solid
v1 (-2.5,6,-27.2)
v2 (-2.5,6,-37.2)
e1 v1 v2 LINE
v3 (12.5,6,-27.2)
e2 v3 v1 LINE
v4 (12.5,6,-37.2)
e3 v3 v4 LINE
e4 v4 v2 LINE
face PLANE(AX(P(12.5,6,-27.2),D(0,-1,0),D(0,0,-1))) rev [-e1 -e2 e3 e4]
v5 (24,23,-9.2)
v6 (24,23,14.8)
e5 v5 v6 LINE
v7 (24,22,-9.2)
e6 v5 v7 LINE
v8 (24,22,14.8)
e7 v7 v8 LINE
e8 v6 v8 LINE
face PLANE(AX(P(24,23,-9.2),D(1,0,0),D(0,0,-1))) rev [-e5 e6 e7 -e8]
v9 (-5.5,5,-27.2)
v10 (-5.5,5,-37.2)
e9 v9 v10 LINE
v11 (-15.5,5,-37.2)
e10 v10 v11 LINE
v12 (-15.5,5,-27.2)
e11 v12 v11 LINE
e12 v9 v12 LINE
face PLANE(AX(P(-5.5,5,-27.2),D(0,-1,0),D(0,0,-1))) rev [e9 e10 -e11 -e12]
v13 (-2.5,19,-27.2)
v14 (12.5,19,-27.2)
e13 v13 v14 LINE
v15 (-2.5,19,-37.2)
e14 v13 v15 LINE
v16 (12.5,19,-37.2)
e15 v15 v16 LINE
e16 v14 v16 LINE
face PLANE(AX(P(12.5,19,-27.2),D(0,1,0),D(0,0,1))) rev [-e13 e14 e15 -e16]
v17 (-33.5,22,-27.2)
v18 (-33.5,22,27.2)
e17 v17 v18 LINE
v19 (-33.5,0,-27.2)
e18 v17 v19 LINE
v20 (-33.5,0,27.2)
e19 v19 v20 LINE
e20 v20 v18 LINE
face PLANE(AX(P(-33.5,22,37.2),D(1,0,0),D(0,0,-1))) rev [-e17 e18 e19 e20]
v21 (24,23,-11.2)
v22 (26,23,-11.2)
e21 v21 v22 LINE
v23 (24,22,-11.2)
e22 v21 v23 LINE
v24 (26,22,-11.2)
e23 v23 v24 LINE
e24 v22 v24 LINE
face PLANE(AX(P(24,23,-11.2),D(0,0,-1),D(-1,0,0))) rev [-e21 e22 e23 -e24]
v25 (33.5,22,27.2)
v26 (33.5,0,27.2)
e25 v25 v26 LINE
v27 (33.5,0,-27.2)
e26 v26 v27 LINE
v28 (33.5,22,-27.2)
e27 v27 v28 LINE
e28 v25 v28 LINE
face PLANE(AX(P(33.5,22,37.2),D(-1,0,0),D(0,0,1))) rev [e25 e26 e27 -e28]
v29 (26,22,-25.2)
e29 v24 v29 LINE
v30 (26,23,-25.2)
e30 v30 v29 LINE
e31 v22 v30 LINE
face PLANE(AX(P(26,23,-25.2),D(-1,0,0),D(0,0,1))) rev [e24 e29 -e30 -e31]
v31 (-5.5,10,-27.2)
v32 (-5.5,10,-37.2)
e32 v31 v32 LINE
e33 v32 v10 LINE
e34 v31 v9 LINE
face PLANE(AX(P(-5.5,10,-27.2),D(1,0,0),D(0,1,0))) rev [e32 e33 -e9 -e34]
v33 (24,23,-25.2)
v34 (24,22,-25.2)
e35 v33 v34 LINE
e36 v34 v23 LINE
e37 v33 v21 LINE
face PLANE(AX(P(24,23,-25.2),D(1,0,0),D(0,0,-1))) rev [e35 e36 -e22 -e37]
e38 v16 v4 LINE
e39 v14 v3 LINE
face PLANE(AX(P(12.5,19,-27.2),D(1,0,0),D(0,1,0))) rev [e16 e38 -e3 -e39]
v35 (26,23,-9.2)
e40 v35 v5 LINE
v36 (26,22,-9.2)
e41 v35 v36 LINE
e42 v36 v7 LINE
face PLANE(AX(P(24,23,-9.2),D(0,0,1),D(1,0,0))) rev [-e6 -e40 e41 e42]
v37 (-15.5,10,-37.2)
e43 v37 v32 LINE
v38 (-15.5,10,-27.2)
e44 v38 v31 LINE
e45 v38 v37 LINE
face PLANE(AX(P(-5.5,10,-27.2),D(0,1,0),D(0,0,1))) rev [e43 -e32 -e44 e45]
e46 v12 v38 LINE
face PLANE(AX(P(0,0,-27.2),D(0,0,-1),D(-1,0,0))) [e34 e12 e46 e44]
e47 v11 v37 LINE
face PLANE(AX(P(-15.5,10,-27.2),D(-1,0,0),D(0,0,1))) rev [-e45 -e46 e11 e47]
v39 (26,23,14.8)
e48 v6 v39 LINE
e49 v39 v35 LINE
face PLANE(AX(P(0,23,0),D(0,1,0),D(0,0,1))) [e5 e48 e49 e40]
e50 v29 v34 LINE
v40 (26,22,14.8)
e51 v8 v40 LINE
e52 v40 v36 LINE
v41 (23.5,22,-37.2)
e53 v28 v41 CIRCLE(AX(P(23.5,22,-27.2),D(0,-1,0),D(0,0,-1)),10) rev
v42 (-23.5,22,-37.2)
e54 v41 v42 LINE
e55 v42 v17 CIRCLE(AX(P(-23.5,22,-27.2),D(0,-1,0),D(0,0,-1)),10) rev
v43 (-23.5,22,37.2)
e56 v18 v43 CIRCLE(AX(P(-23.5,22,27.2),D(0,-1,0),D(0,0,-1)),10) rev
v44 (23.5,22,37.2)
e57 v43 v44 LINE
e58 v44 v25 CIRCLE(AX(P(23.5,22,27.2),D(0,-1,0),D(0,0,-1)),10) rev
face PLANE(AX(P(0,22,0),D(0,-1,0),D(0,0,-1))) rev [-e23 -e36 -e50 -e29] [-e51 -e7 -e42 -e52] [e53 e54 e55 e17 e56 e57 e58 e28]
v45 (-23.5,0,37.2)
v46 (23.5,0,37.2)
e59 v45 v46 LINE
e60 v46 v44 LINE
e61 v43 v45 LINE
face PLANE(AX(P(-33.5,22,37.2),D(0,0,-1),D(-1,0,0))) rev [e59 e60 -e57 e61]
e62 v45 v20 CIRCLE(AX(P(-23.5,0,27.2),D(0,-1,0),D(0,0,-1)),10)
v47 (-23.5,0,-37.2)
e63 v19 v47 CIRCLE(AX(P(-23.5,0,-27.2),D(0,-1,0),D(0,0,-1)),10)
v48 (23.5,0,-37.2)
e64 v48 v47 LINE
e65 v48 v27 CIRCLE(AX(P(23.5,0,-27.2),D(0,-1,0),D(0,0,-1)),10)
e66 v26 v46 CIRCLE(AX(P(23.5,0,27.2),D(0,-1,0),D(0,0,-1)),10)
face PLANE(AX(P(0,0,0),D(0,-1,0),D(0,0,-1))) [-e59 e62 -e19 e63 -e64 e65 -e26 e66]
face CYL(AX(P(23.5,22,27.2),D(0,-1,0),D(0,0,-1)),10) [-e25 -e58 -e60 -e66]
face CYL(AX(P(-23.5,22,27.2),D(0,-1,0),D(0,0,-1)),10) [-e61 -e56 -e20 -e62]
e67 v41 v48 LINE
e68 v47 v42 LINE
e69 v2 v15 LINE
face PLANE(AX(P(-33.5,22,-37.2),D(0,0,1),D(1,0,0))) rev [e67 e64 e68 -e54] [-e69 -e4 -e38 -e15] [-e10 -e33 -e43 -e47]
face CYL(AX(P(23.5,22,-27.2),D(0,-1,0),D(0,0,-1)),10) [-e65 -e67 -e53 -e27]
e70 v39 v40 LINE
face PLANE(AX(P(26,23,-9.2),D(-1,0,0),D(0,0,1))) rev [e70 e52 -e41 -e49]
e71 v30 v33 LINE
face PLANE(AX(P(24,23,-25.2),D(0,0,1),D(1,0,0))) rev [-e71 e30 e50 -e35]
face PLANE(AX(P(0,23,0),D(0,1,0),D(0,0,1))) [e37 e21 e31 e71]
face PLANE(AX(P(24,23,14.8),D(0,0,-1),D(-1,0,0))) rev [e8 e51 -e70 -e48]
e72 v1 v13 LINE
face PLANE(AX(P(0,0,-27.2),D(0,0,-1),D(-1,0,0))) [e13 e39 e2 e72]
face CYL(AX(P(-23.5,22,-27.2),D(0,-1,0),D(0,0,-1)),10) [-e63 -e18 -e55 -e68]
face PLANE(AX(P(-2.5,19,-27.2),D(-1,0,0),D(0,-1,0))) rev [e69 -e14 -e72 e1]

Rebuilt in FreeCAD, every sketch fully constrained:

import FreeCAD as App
import Part
import Sketcher


def edges_at(feature, points):
    """Names of the edges that pass closest to the given points."""
    edges = feature.Shape.Edges
    near = lambda p: min(range(len(edges)), key=lambda i: edges[i].distToShape(Part.Vertex(*p))[0])
    return sorted({f"Edge{near(p) + 1}" for p in points})

doc = App.newDocument("Part")
body = doc.addObject("PartDesign::Body", "Body")

sketch1 = body.newObject("Sketcher::SketchObject", "Sketch")
sketch1.AttachmentSupport = (doc.getObject("XZ_Plane"), [""])
sketch1.MapMode = "FlatFace"
sketch1.addGeometry([
    Part.LineSegment(App.Vector(-34, -37, 0), App.Vector(-34, 37, 0)),
    Part.LineSegment(App.Vector(-34, 37, 0), App.Vector(34, 37, 0)),
    Part.LineSegment(App.Vector(34, 37, 0), App.Vector(34, -37, 0)),
    Part.LineSegment(App.Vector(34, -37, 0), App.Vector(-34, -37, 0)),
], False)
sketch1.addConstraint([
    Sketcher.Constraint("Coincident", 0, 2, 1, 1),
    Sketcher.Constraint("Coincident", 1, 2, 2, 1),
    Sketcher.Constraint("Coincident", 2, 2, 3, 1),
    Sketcher.Constraint("Coincident", 3, 2, 0, 1),
    Sketcher.Constraint("Vertical", 0),
    Sketcher.Constraint("Horizontal", 1),
    Sketcher.Constraint("Vertical", 2),
    Sketcher.Constraint("Horizontal", 3),
    Sketcher.Constraint("Symmetric", 0, 2, 2, 2, -1, 1),
    Sketcher.Constraint("DistanceX", 1, 1, 1, 2, 67.0),
    Sketcher.Constraint("DistanceY", 0, 1, 0, 2, 74.4),
])
pad1 = body.newObject("PartDesign::Pad", "Pad")
pad1.Profile = sketch1
pad1.Length = 22
pad1.Reversed = True
doc.recompute()

fillet = body.newObject("PartDesign::Fillet", "Fillet")
fillet.Base = (pad1, edges_at(pad1, [
    (33.5, 11, 37.2),
    (-33.5, 11, 37.2),
    (-33.5, 11, -37.2),
    (33.5, 11, -37.2),
]))
fillet.Radius = 10

sketch2 = body.newObject("Sketcher::SketchObject", "Sketch001")
sketch2.AttachmentSupport = (doc.getObject("XY_Plane"), [""])
sketch2.MapMode = "FlatFace"
sketch2.AttachmentOffset = App.Placement(App.Vector(0, 0, -37.2), App.Rotation())
sketch2.addGeometry([
    Part.LineSegment(App.Vector(12, 19, 0), App.Vector(12, 6, 0)),
    Part.LineSegment(App.Vector(12, 6, 0), App.Vector(-2, 6, 0)),
    Part.LineSegment(App.Vector(-2, 6, 0), App.Vector(-2, 19, 0)),
    Part.LineSegment(App.Vector(-2, 19, 0), App.Vector(12, 19, 0)),
    Part.LineSegment(App.Vector(-6, 10, 0), App.Vector(-6, 5, 0)),
    Part.LineSegment(App.Vector(-6, 5, 0), App.Vector(-16, 5, 0)),
    Part.LineSegment(App.Vector(-16, 5, 0), App.Vector(-16, 10, 0)),
    Part.LineSegment(App.Vector(-16, 10, 0), App.Vector(-6, 10, 0)),
], False)
sketch2.addConstraint([
    Sketcher.Constraint("Coincident", 0, 2, 1, 1),
    Sketcher.Constraint("Coincident", 1, 2, 2, 1),
    Sketcher.Constraint("Coincident", 2, 2, 3, 1),
    Sketcher.Constraint("Coincident", 3, 2, 0, 1),
    Sketcher.Constraint("Coincident", 4, 2, 5, 1),
    Sketcher.Constraint("Coincident", 5, 2, 6, 1),
    Sketcher.Constraint("Coincident", 6, 2, 7, 1),
    Sketcher.Constraint("Coincident", 7, 2, 4, 1),
    Sketcher.Constraint("Vertical", 0),
    Sketcher.Constraint("Horizontal", 1),
    Sketcher.Constraint("Vertical", 2),
    Sketcher.Constraint("Horizontal", 3),
    Sketcher.Constraint("Vertical", 4),
    Sketcher.Constraint("Horizontal", 5),
    Sketcher.Constraint("Vertical", 6),
    Sketcher.Constraint("Horizontal", 7),
    Sketcher.Constraint("DistanceX", 1, 2, 1, 1, 15.0),
    Sketcher.Constraint("DistanceX", 5, 2, 5, 1, 10.0),
    Sketcher.Constraint("DistanceY", 0, 2, 0, 1, 13.0),
    Sketcher.Constraint("DistanceY", 4, 2, 4, 1, 5.0),
    Sketcher.Constraint("DistanceY", -1, 1, 0, 2, 6.0),
    Sketcher.Constraint("DistanceY", -1, 1, 4, 2, 5.0),
    Sketcher.Constraint("DistanceX", 4, 2, 1, 2, 3.0),
    Sketcher.Constraint("DistanceX", -1, 1, 0, 2, 12.5),
])
pocket1 = body.newObject("PartDesign::Pocket", "Pocket")
pocket1.Profile = sketch2
pocket1.Length = 10
pocket1.Reversed = True

sketch3 = body.newObject("Sketcher::SketchObject", "Sketch002")
sketch3.AttachmentSupport = (doc.getObject("XZ_Plane"), [""])
sketch3.MapMode = "FlatFace"
sketch3.AttachmentOffset = App.Placement(App.Vector(0, 0, -22), App.Rotation())
sketch3.addGeometry([
    Part.LineSegment(App.Vector(24, -25.2, 0), App.Vector(24, -11.2, 0)),
    Part.LineSegment(App.Vector(24, -11.2, 0), App.Vector(26, -11.2, 0)),
    Part.LineSegment(App.Vector(26, -11.2, 0), App.Vector(26, -25.2, 0)),
    Part.LineSegment(App.Vector(26, -25.2, 0), App.Vector(24, -25.2, 0)),
    Part.LineSegment(App.Vector(24, -9.2, 0), App.Vector(24, 14.8, 0)),
    Part.LineSegment(App.Vector(24, 14.8, 0), App.Vector(26, 14.8, 0)),
    Part.LineSegment(App.Vector(26, 14.8, 0), App.Vector(26, -9.2, 0)),
    Part.LineSegment(App.Vector(26, -9.2, 0), App.Vector(24, -9.2, 0)),
], False)
sketch3.addConstraint([
    Sketcher.Constraint("Coincident", 0, 2, 1, 1),
    Sketcher.Constraint("Coincident", 1, 2, 2, 1),
    Sketcher.Constraint("Coincident", 2, 2, 3, 1),
    Sketcher.Constraint("Coincident", 3, 2, 0, 1),
    Sketcher.Constraint("Coincident", 4, 2, 5, 1),
    Sketcher.Constraint("Coincident", 5, 2, 6, 1),
    Sketcher.Constraint("Coincident", 6, 2, 7, 1),
    Sketcher.Constraint("Coincident", 7, 2, 4, 1),
    Sketcher.Constraint("Vertical", 0),
    Sketcher.Constraint("Horizontal", 1),
    Sketcher.Constraint("Vertical", 2),
    Sketcher.Constraint("Horizontal", 3),
    Sketcher.Constraint("Vertical", 4),
    Sketcher.Constraint("Horizontal", 5),
    Sketcher.Constraint("Vertical", 6),
    Sketcher.Constraint("Horizontal", 7),
    Sketcher.Constraint("Vertical", 3, 2, 4, 2),
    Sketcher.Constraint("Vertical", 2, 2, 5, 2),
    Sketcher.Constraint("DistanceX", 1, 1, 1, 2, 2.0),
    Sketcher.Constraint("DistanceY", 0, 1, 0, 2, 14.0),
    Sketcher.Constraint("DistanceY", 4, 1, 4, 2, 24.0),
    Sketcher.Constraint("DistanceX", -1, 1, 0, 2, 24.0),
    Sketcher.Constraint("DistanceY", 0, 2, 4, 2, 26.0),
    Sketcher.Constraint("DistanceY", 0, 2, -1, 1, 11.2),
])
pad2 = body.newObject("PartDesign::Pad", "Pad001")
pad2.Profile = sketch3
pad2.Length = 1
pad2.Reversed = True

doc.recompute()
